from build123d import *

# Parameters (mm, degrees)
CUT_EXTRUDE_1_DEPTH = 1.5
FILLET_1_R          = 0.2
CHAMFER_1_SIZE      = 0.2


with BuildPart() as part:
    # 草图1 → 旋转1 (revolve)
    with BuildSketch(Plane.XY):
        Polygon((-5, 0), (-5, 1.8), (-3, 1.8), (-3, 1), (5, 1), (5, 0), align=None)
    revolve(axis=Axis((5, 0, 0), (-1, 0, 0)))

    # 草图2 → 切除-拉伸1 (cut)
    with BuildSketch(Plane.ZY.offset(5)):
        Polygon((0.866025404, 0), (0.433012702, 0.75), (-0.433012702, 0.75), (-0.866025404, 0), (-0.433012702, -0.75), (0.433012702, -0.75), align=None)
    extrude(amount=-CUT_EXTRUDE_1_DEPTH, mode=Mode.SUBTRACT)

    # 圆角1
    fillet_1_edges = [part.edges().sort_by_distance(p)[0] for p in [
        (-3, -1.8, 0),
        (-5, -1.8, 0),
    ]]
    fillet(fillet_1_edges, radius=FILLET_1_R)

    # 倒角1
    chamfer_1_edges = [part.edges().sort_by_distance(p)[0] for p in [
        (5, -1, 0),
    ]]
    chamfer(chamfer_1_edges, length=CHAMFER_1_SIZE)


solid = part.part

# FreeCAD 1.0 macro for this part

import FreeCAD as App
import Part
import Sketcher
Q = App.Units.Quantity


def edges_at(feature, points):
    """Names of the edges that pass closest to the given points."""
    edges = feature.Shape.Edges
    near = lambda p: min(range(len(edges)), key=lambda i: edges[i].distToShape(Part.Vertex(*p))[0])
    return sorted({f"Edge{near(p) + 1}" for p in points})

doc = App.newDocument("Part")
params = doc.addObject("Spreadsheet::Sheet", "Params")
for row, (alias, value) in enumerate([
    ("sketch1_width", "10 mm"),
    ("sketch1_width2", "8 mm"),
    ("sketch1_height", "1 mm"),
    ("sketch1_height2", "1.8 mm"),
    ("revolution_angle", "360 deg"),
    ("pocket1_length", "1.5 mm"),
    ("fillet_radius", "0.2 mm"),
    ("chamfer_size", "0.2 mm"),
], start=1):
    params.set(f"A{row}", alias)
    params.set(f"B{row}", "=" + value)
    params.setAlias(f"B{row}", alias)

body = doc.addObject("PartDesign::Body", "Body")

# Sketch on XY plane
sketch1 = body.newObject("Sketcher::SketchObject", "Sketch")
sketch1.AttachmentSupport = (doc.getObject("XY_Plane"), [""])
sketch1.MapMode = "FlatFace"
sketch1.addGeometry(Part.LineSegment(App.Vector(-5, 1.8, 0), App.Vector(-5, 0, 0)), False)
sketch1.addGeometry(Part.LineSegment(App.Vector(-5, 0, 0), App.Vector(5, 0, 0)), False)
sketch1.addGeometry(Part.LineSegment(App.Vector(5, 0, 0), App.Vector(5, 1, 0)), False)
sketch1.addGeometry(Part.LineSegment(App.Vector(5, 1, 0), App.Vector(-3, 1, 0)), False)
sketch1.addGeometry(Part.LineSegment(App.Vector(-3, 1, 0), App.Vector(-3, 1.8, 0)), False)
sketch1.addGeometry(Part.LineSegment(App.Vector(-3, 1.8, 0), App.Vector(-5, 1.8, 0)), False)
sketch1.addConstraint(Sketcher.Constraint("Coincident", 0, 2, 1, 1))
sketch1.addConstraint(Sketcher.Constraint("Coincident", 1, 2, 2, 1))
sketch1.addConstraint(Sketcher.Constraint("Coincident", 2, 2, 3, 1))
sketch1.addConstraint(Sketcher.Constraint("Coincident", 3, 2, 4, 1))
sketch1.addConstraint(Sketcher.Constraint("Coincident", 4, 2, 5, 1))
sketch1.addConstraint(Sketcher.Constraint("Coincident", 5, 2, 0, 1))
sketch1.addConstraint(Sketcher.Constraint("Vertical", 0))
sketch1.addConstraint(Sketcher.Constraint("Horizontal", 1))
sketch1.addConstraint(Sketcher.Constraint("Vertical", 2))
sketch1.addConstraint(Sketcher.Constraint("Horizontal", 3))
sketch1.addConstraint(Sketcher.Constraint("Vertical", 4))
sketch1.addConstraint(Sketcher.Constraint("Horizontal", 5))
sketch1.addConstraint(Sketcher.Constraint("Symmetric", 0, 2, 1, 2, -1, 1))
sketch1.addConstraint(Sketcher.Constraint("DistanceX", 1, 1, 1, 2, 10.0))
sketch1.addConstraint(Sketcher.Constraint("DistanceX", 3, 2, 3, 1, 8.0))
sketch1.addConstraint(Sketcher.Constraint("DistanceY", 2, 1, 2, 2, 1.0))
sketch1.addConstraint(Sketcher.Constraint("DistanceY", 0, 2, 0, 1, 1.8))
sketch1.setExpression("Constraints[13]", "Params.sketch1_width")
sketch1.setExpression("Constraints[14]", "Params.sketch1_width2")
sketch1.setExpression("Constraints[15]", "Params.sketch1_height")
sketch1.setExpression("Constraints[16]", "Params.sketch1_height2")
revolution = body.newObject("PartDesign::Revolution", "Revolution")
revolution.Profile = sketch1
revolution.ReferenceAxis = (sketch1, ["H_Axis"])
revolution.setExpression("Angle", "Params.revolution_angle")

# Sketch on YZ plane
sketch2 = body.newObject("Sketcher::SketchObject", "Sketch001")
sketch2.AttachmentSupport = (doc.getObject("YZ_Plane"), [""])
sketch2.MapMode = "FlatFace"
sketch2.AttachmentOffset = App.Placement(App.Vector(0, 0, -5), App.Rotation())
sketch2.addGeometry(Part.LineSegment(App.Vector(0, 0.9, 0), App.Vector(0.8, 0.4, 0)), False)
sketch2.addGeometry(Part.LineSegment(App.Vector(0.8, 0.4, 0), App.Vector(0.8, -0.4, 0)), False)
sketch2.addGeometry(Part.LineSegment(App.Vector(0.8, -0.4, 0), App.Vector(0, -0.9, 0)), False)
sketch2.addGeometry(Part.LineSegment(App.Vector(0, -0.9, 0), App.Vector(-0.8, -0.4, 0)), False)
sketch2.addGeometry(Part.LineSegment(App.Vector(-0.8, -0.4, 0), App.Vector(-0.8, 0.4, 0)), False)
sketch2.addGeometry(Part.LineSegment(App.Vector(-0.8, 0.4, 0), App.Vector(0, 0.9, 0)), False)
sketch2.addConstraint(Sketcher.Constraint("Coincident", 0, 2, 1, 1))
sketch2.addConstraint(Sketcher.Constraint("Coincident", 1, 2, 2, 1))
sketch2.addConstraint(Sketcher.Constraint("Coincident", 2, 2, 3, 1))
sketch2.addConstraint(Sketcher.Constraint("Coincident", 3, 2, 4, 1))
sketch2.addConstraint(Sketcher.Constraint("Coincident", 4, 2, 5, 1))
sketch2.addConstraint(Sketcher.Constraint("Coincident", 5, 2, 0, 1))
sketch2.addConstraint(Sketcher.Constraint("Vertical", 1))
sketch2.addConstraint(Sketcher.Constraint("Vertical", 4))
sketch2.addConstraint(Sketcher.Constraint("Symmetric", 0, 2, 3, 2, -1, 1))
sketch2.addConstraint(Sketcher.Constraint("Symmetric", 2, 2, 5, 2, -1, 1))
sketch2.addConstraint(Sketcher.Constraint("PointOnObject", 2, 2, -2))
sketch2.addConstraint(Sketcher.Constraint("Parallel", 2, 5))
sketch2.addConstraint(Sketcher.Constraint("Horizontal", 1, 2, 3, 2))
sketch2.addConstraint(Sketcher.Constraint("Angle", 0, Q("-30 deg")))
sketch2.addConstraint(Sketcher.Constraint("DistanceX", 3, 2, 1, 2, 1.5))
sketch2.addConstraint(Sketcher.Constraint("DistanceY", 1, 2, 1, 1, 0.866025))
pocket1 = body.newObject("PartDesign::Pocket", "Pocket")
pocket1.Profile = sketch2
pocket1.setExpression("Length", "Params.pocket1_length")
pocket1.Reversed = True
doc.recompute()

fillet = body.newObject("PartDesign::Fillet", "Fillet")
fillet.Base = (pocket1, edges_at(pocket1, [(-3, -1.8, 0), (-5, -1.8, 0)]))
fillet.setExpression("Radius", "Params.fillet_radius")
doc.recompute()

chamfer = body.newObject("PartDesign::Chamfer", "Chamfer")
chamfer.Base = (fillet, edges_at(fillet, [(5, -1, 0)]))
chamfer.setExpression("Size", "Params.chamfer_size")

doc.recompute()
